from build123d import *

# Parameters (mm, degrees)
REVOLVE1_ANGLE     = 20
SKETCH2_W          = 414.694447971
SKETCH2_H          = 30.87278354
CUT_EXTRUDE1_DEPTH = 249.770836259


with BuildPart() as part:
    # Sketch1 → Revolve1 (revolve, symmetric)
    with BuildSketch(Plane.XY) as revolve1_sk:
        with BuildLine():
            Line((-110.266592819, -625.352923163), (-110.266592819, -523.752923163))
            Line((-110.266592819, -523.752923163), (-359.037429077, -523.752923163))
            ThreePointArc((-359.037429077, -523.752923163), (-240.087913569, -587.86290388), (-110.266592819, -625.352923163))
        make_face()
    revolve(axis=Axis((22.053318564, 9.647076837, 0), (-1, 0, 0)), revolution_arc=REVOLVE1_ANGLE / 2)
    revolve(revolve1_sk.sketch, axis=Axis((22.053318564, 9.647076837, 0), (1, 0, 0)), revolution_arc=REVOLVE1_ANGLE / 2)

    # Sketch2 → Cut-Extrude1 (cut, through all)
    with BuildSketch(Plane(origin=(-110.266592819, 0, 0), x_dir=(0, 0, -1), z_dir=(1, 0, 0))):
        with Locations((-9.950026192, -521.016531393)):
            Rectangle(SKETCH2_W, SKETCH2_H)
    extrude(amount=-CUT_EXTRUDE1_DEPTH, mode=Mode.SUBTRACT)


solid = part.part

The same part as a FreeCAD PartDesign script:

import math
import FreeCAD as App
import Part
import Sketcher

V = App.Vector
Q = App.Units.Quantity

doc = App.newDocument("Part")
body = doc.addObject("PartDesign::Body", "Body")

sketch1 = body.newObject("Sketcher::SketchObject", "Sketch")
sketch1.AttachmentSupport = (doc.getObject("XY_Plane"), [""])
sketch1.MapMode = "FlatFace"
sketch1.addGeometry([
    Part.LineSegment(V(-110, -625, 0), V(-110, -524, 0)),
    Part.LineSegment(V(-110, -524, 0), V(-359, -524, 0)),
    Part.ArcOfCircle(Part.Circle(V(0, 0, 0), V(0, 0, 1), 635), math.radians(-124), math.radians(-100)),
], False)
sketch1.addGeometry(Part.LineSegment(V(0, 10, 0), V(-359, 10, 0)), True)
sketch1.addConstraint([
    Sketcher.Constraint("Coincident", 0, 2, 1, 1),
    Sketcher.Constraint("Coincident", 1, 2, 2, 1),
    Sketcher.Constraint("Coincident", 2, 2, 0, 1),
    Sketcher.Constraint("Vertical", 0),
    Sketcher.Constraint("Horizontal", 1),
    Sketcher.Constraint("Horizontal", 3),
    Sketcher.Constraint("Coincident", 2, 3, -1, 1),
    Sketcher.Constraint("PointOnObject", 3, 1, -2),
    Sketcher.Constraint("Vertical", 1, 2, 3, 2),
    Sketcher.Constraint("Radius", 2, Q("25 in")),
    Sketcher.Constraint("DistanceY", 0, 1, 0, 2, Q("4 in")),
    Sketcher.Constraint("DistanceY", 0, 2, 3, 1, Q("21 in")),
    Sketcher.Constraint("DistanceX", 3, 2, 3, 1, 359.037429),
])
revolution = body.newObject("PartDesign::Revolution", "Revolution")
revolution.Profile = sketch1
revolution.ReferenceAxis = (sketch1, ["Axis0"])
revolution.Angle = 10

sketch2 = body.newObject("Sketcher::SketchObject", "Sketch001")
sketch2.AttachmentSupport = (doc.getObject("XY_Plane"), [""])
sketch2.MapMode = "FlatFace"
sketch2.addGeometry([
    Part.LineSegment(V(-110, -625, 0), V(-110, -524, 0)),
    Part.LineSegment(V(-110, -524, 0), V(-359, -524, 0)),
    Part.ArcOfCircle(Part.Circle(V(0, 0, 0), V(0, 0, 1), 635), math.radians(-124), math.radians(-100)),
], False)
sketch2.addGeometry(Part.LineSegment(V(-359, 10, 0), V(0, 10, 0)), True)
sketch2.addConstraint([
    Sketcher.Constraint("Coincident", 0, 2, 1, 1),
    Sketcher.Constraint("Coincident", 1, 2, 2, 1),
    Sketcher.Constraint("Coincident", 2, 2, 0, 1),
    Sketcher.Constraint("Vertical", 0),
    Sketcher.Constraint("Horizontal", 1),
    Sketcher.Constraint("Horizontal", 3),
    Sketcher.Constraint("Coincident", 2, 3, -1, 1),
    Sketcher.Constraint("PointOnObject", 3, 2, -2),
    Sketcher.Constraint("Vertical", 1, 2, 3, 1),
    Sketcher.Constraint("Radius", 2, Q("25 in")),
    Sketcher.Constraint("DistanceY", 0, 1, 0, 2, Q("4 in")),
    Sketcher.Constraint("DistanceY", 1, 2, 3, 1, Q("21 in")),
    Sketcher.Constraint("DistanceX", 3, 1, 3, 2, 359.037429),
])
revolution2 = body.newObject("PartDesign::Revolution", "Revolution001")
revolution2.Profile = sketch2
revolution2.ReferenceAxis = (sketch2, ["Axis0"])
revolution2.Angle = 10

sketch3 = body.newObject("Sketcher::SketchObject", "Sketch002")
sketch3.AttachmentSupport = (doc.getObject("YZ_Plane"), [""])
sketch3.MapMode = "FlatFace"
sketch3.AttachmentOffset = App.Placement(V(0, 0, -110.266593), App.Rotation())
sketch3.addGeometry([
    Part.LineSegment(V(-506, 217, 0), V(-536, 217, 0)),
    Part.LineSegment(V(-536, 217, 0), V(-536, -197, 0)),
    Part.LineSegment(V(-536, -197, 0), V(-506, -197, 0)),
    Part.LineSegment(V(-506, -197, 0), V(-506, 217, 0)),
], False)
sketch3.addConstraint([
    Sketcher.Constraint("Coincident", 0, 2, 1, 1),
    Sketcher.Constraint("Coincident", 1, 2, 2, 1),
    Sketcher.Constraint("Coincident", 2, 2, 3, 1),
    Sketcher.Constraint("Coincident", 3, 2, 0, 1),
    Sketcher.Constraint("Horizontal", 0),
    Sketcher.Constraint("Vertical", 1),
    Sketcher.Constraint("Horizontal", 2),
    Sketcher.Constraint("Vertical", 3),
    Sketcher.Constraint("DistanceX", 0, 2, 0, 1, 30.872784),
    Sketcher.Constraint("DistanceY", 1, 2, 1, 1, 414.694448),
    Sketcher.Constraint("DistanceY", -1, 1, 0, 2, 217.29725),
    Sketcher.Constraint("DistanceX", 2, 2, -1, 1, 505.58014),
])
pocket1 = body.newObject("PartDesign::Pocket", "Pocket")
pocket1.Profile = sketch3
pocket1.Type = "ThroughAll"

doc.recompute()
